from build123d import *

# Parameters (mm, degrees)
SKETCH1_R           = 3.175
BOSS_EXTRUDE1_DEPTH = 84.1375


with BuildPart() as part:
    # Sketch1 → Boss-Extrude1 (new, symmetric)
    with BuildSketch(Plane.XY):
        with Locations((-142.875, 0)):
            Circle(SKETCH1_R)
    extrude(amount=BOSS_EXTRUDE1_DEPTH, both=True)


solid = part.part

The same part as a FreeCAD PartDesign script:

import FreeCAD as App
import Part
import Sketcher
Q = App.Units.Quantity

doc = App.newDocument("Part")
body = doc.addObject("PartDesign::Body", "Body")

# Sketch on XY plane
sketch1 = body.newObject("Sketcher::SketchObject", "Sketch")
sketch1.AttachmentSupport = (doc.getObject("XY_Plane"), [""])
sketch1.MapMode = "FlatFace"
sketch1.addGeometry(Part.Circle(App.Vector(-142.9, 0, 0), App.Vector(0, 0, 1), 3.2), False)
sketch1.addConstraint([
    Sketcher.Constraint("PointOnObject", 0, 3, -1),
    Sketcher.Constraint("Diameter", 0, Q("0.25 in")),
    Sketcher.Constraint("DistanceX", 0, 3, -1, 1, Q("5.625 in")),
])
pad1 = body.newObject("PartDesign::Pad", "Pad")
pad1.Profile = sketch1
pad1.Length = Q("6.625 in")
pad1.Midplane = True

doc.recompute()
